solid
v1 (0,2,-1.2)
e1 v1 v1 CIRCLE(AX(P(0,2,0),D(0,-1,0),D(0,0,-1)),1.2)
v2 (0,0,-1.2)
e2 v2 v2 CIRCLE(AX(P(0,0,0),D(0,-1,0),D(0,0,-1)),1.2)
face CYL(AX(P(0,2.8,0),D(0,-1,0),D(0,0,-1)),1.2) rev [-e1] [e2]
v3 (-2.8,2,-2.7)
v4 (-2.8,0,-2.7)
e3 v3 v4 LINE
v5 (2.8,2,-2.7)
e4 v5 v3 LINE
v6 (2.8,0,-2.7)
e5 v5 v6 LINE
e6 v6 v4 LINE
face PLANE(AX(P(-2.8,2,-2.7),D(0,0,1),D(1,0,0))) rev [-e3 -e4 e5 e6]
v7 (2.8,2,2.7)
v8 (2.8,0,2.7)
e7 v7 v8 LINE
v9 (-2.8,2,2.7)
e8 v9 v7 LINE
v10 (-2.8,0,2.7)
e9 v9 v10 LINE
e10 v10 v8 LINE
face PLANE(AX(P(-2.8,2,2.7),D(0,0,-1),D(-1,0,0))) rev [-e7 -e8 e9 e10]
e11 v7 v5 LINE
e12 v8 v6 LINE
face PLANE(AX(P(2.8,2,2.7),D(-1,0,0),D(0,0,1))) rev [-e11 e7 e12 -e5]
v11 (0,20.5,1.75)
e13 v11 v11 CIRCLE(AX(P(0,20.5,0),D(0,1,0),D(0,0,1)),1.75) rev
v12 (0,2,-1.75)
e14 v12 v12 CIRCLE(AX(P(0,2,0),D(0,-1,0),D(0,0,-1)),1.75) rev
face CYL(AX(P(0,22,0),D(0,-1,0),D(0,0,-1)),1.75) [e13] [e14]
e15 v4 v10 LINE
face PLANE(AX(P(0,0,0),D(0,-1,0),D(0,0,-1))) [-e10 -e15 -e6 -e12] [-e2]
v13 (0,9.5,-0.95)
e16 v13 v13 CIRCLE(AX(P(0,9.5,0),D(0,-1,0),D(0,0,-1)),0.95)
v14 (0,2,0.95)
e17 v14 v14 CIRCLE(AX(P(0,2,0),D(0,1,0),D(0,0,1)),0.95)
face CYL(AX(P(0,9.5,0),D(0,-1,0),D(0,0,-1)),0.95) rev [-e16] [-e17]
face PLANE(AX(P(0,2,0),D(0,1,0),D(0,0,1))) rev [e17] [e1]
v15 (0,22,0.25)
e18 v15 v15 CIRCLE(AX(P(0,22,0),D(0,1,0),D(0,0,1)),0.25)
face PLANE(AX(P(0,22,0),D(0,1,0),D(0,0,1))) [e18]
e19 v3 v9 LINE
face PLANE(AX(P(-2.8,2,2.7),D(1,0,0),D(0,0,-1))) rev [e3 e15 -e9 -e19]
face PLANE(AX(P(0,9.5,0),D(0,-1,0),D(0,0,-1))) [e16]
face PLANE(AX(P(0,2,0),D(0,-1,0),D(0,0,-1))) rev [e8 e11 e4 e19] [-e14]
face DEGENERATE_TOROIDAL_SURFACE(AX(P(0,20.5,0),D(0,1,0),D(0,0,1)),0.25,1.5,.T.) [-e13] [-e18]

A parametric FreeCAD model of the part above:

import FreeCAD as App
import Part
import Sketcher

V = App.Vector
Q = App.Units.Quantity


def edges_at(feature, points):
    """Names of the edges that pass closest to the given points."""
    edges = feature.Shape.Edges
    near = lambda p: min(range(len(edges)), key=lambda i: edges[i].distToShape(Part.Vertex(*p))[0])
    return sorted({f"Edge{near(p) + 1}" for p in points})


def add_polygon(sketch, points):
    """Adds a closed chain of lines whose ends are joined by coincident constraints."""
    first, n = sketch.GeometryCount, len(points)
    for a, b in zip(points, points[1:] + points[:1]):
        sketch.addGeometry(Part.LineSegment(App.Vector(*a, 0), App.Vector(*b, 0)), False)
    for i in range(n):
        sketch.addConstraint(Sketcher.Constraint("Coincident", first + i, 2, first + (i + 1) % n, 1))

doc = App.newDocument("Part")
params = doc.addObject("Spreadsheet::Sheet", "Params")
for row, (alias, value) in enumerate([
    ("sketch1_width", "5.6 mm"),
    ("sketch1_height", "5.4 mm"),
    ("pad1_length", "2 mm"),
    ("sketch2_diameter", "1.9 mm"),
    ("pocket1_length", "9.5 mm"),
    ("sketch3_diameter", "2.4 mm"),
    ("pocket2_length", "2.8 mm"),
    ("sketch4_diameter", "3.5 mm"),
    ("pad2_length", "20 mm"),
    ("fillet_radius", "1.5 mm"),
    ("sketch5_diameter", "1.9 mm"),
    ("pocket3_length", "9.5 mm"),
], start=1):
    params.set(f"A{row}", alias)
    params.set(f"B{row}", "=" + value)
    params.setAlias(f"B{row}", alias)

body = doc.addObject("PartDesign::Body", "Body")

sketch1 = doc.addObject("Sketcher::SketchObject", "Sketch")
body.addObject(sketch1)
sketch1.AttachmentSupport = (doc.XZ_Plane, [""])
sketch1.MapMode = "FlatFace"
add_polygon(sketch1, [(-3, -3), (-3, 3), (3, 3), (3, -3)])
sketch1.addConstraint([
    Sketcher.Constraint("Vertical", 0),
    Sketcher.Constraint("Horizontal", 1),
    Sketcher.Constraint("Vertical", 2),
    Sketcher.Constraint("Horizontal", 3),
    Sketcher.Constraint("Symmetric", 0, 2, 2, 2, -1, 1),
    Sketcher.Constraint("DistanceX", 1, 1, 1, 2, Q("5.6 mm")),
    Sketcher.Constraint("DistanceY", 0, 1, 0, 2, Q("5.4 mm")),
])
sketch1.setExpression("Constraints[9]", "Params.sketch1_width")
sketch1.setExpression("Constraints[10]", "Params.sketch1_height")
pad1 = doc.addObject("PartDesign::Pad", "Pad")
body.addObject(pad1)
pad1.Profile = sketch1
pad1.setExpression("Length", "Params.pad1_length")
pad1.Reversed = True

sketch2 = doc.addObject("Sketcher::SketchObject", "Sketch001")
body.addObject(sketch2)
sketch2.AttachmentSupport = (doc.XZ_Plane, [""])
sketch2.MapMode = "FlatFace"
sketch2.addGeometry(Part.Circle(V(0, 0, 0), V(0, 0, 1), 0.9), False)
sketch2.addConstraint([
    Sketcher.Constraint("Coincident", 0, 3, -1, 1),
    Sketcher.Constraint("Diameter", 0, Q("1.9 mm")),
])
sketch2.setExpression("Constraints[1]", "Params.sketch2_diameter")
pocket1 = doc.addObject("PartDesign::Pocket", "Pocket")
body.addObject(pocket1)
pocket1.Profile = sketch2
pocket1.setExpression("Length", "Params.pocket1_length")

sketch3 = doc.addObject("Sketcher::SketchObject", "Sketch002")
body.addObject(sketch3)
sketch3.AttachmentSupport = (doc.XZ_Plane, [""])
sketch3.MapMode = "FlatFace"
sketch3.addGeometry(Part.Circle(V(0, 0, 0), V(0, 0, 1), 1.2), False)
sketch3.addConstraint([
    Sketcher.Constraint("Coincident", 0, 3, -1, 1),
    Sketcher.Constraint("Diameter", 0, Q("2.4 mm")),
])
sketch3.setExpression("Constraints[1]", "Params.sketch3_diameter")
pocket2 = doc.addObject("PartDesign::Pocket", "Pocket001")
body.addObject(pocket2)
pocket2.Profile = sketch3
pocket2.setExpression("Length", "Params.pocket2_length")

sketch4 = doc.addObject("Sketcher::SketchObject", "Sketch003")
body.addObject(sketch4)
sketch4.AttachmentSupport = (doc.XZ_Plane, [""])
sketch4.MapMode = "FlatFace"
sketch4.AttachmentOffset = App.Placement(V(0, 0, -2), App.Rotation())
sketch4.addGeometry(Part.Circle(V(0, 0, 0), V(0, 0, 1), 1.8), False)
sketch4.addConstraint([
    Sketcher.Constraint("Coincident", 0, 3, -1, 1),
    Sketcher.Constraint("Diameter", 0, Q("3.5 mm")),
])
sketch4.setExpression("Constraints[1]", "Params.sketch4_diameter")
pad2 = doc.addObject("PartDesign::Pad", "Pad001")
body.addObject(pad2)
pad2.Profile = sketch4
pad2.setExpression("Length", "Params.pad2_length")
pad2.Reversed = True
doc.recompute()

fillet = doc.addObject("PartDesign::Fillet", "Fillet")
body.addObject(fillet)
fillet.Base = (pad2, edges_at(pad2, [(0, 22, 1.75)]))
fillet.setExpression("Radius", "Params.fillet_radius")

sketch5 = doc.addObject("Sketcher::SketchObject", "Sketch004")
body.addObject(sketch5)
sketch5.AttachmentSupport = (doc.XZ_Plane, [""])
sketch5.MapMode = "FlatFace"
sketch5.addGeometry(Part.Circle(V(0, 0, 0), V(0, 0, 1), 0.9), False)
sketch5.addConstraint([
    Sketcher.Constraint("Coincident", 0, 3, -1, 1),
    Sketcher.Constraint("Diameter", 0, Q("1.9 mm")),
])
sketch5.setExpression("Constraints[1]", "Params.sketch5_diameter")
pocket3 = doc.addObject("PartDesign::Pocket", "Pocket002")
body.addObject(pocket3)
pocket3.Profile = sketch5
pocket3.setExpression("Length", "Params.pocket3_length")

doc.recompute()
